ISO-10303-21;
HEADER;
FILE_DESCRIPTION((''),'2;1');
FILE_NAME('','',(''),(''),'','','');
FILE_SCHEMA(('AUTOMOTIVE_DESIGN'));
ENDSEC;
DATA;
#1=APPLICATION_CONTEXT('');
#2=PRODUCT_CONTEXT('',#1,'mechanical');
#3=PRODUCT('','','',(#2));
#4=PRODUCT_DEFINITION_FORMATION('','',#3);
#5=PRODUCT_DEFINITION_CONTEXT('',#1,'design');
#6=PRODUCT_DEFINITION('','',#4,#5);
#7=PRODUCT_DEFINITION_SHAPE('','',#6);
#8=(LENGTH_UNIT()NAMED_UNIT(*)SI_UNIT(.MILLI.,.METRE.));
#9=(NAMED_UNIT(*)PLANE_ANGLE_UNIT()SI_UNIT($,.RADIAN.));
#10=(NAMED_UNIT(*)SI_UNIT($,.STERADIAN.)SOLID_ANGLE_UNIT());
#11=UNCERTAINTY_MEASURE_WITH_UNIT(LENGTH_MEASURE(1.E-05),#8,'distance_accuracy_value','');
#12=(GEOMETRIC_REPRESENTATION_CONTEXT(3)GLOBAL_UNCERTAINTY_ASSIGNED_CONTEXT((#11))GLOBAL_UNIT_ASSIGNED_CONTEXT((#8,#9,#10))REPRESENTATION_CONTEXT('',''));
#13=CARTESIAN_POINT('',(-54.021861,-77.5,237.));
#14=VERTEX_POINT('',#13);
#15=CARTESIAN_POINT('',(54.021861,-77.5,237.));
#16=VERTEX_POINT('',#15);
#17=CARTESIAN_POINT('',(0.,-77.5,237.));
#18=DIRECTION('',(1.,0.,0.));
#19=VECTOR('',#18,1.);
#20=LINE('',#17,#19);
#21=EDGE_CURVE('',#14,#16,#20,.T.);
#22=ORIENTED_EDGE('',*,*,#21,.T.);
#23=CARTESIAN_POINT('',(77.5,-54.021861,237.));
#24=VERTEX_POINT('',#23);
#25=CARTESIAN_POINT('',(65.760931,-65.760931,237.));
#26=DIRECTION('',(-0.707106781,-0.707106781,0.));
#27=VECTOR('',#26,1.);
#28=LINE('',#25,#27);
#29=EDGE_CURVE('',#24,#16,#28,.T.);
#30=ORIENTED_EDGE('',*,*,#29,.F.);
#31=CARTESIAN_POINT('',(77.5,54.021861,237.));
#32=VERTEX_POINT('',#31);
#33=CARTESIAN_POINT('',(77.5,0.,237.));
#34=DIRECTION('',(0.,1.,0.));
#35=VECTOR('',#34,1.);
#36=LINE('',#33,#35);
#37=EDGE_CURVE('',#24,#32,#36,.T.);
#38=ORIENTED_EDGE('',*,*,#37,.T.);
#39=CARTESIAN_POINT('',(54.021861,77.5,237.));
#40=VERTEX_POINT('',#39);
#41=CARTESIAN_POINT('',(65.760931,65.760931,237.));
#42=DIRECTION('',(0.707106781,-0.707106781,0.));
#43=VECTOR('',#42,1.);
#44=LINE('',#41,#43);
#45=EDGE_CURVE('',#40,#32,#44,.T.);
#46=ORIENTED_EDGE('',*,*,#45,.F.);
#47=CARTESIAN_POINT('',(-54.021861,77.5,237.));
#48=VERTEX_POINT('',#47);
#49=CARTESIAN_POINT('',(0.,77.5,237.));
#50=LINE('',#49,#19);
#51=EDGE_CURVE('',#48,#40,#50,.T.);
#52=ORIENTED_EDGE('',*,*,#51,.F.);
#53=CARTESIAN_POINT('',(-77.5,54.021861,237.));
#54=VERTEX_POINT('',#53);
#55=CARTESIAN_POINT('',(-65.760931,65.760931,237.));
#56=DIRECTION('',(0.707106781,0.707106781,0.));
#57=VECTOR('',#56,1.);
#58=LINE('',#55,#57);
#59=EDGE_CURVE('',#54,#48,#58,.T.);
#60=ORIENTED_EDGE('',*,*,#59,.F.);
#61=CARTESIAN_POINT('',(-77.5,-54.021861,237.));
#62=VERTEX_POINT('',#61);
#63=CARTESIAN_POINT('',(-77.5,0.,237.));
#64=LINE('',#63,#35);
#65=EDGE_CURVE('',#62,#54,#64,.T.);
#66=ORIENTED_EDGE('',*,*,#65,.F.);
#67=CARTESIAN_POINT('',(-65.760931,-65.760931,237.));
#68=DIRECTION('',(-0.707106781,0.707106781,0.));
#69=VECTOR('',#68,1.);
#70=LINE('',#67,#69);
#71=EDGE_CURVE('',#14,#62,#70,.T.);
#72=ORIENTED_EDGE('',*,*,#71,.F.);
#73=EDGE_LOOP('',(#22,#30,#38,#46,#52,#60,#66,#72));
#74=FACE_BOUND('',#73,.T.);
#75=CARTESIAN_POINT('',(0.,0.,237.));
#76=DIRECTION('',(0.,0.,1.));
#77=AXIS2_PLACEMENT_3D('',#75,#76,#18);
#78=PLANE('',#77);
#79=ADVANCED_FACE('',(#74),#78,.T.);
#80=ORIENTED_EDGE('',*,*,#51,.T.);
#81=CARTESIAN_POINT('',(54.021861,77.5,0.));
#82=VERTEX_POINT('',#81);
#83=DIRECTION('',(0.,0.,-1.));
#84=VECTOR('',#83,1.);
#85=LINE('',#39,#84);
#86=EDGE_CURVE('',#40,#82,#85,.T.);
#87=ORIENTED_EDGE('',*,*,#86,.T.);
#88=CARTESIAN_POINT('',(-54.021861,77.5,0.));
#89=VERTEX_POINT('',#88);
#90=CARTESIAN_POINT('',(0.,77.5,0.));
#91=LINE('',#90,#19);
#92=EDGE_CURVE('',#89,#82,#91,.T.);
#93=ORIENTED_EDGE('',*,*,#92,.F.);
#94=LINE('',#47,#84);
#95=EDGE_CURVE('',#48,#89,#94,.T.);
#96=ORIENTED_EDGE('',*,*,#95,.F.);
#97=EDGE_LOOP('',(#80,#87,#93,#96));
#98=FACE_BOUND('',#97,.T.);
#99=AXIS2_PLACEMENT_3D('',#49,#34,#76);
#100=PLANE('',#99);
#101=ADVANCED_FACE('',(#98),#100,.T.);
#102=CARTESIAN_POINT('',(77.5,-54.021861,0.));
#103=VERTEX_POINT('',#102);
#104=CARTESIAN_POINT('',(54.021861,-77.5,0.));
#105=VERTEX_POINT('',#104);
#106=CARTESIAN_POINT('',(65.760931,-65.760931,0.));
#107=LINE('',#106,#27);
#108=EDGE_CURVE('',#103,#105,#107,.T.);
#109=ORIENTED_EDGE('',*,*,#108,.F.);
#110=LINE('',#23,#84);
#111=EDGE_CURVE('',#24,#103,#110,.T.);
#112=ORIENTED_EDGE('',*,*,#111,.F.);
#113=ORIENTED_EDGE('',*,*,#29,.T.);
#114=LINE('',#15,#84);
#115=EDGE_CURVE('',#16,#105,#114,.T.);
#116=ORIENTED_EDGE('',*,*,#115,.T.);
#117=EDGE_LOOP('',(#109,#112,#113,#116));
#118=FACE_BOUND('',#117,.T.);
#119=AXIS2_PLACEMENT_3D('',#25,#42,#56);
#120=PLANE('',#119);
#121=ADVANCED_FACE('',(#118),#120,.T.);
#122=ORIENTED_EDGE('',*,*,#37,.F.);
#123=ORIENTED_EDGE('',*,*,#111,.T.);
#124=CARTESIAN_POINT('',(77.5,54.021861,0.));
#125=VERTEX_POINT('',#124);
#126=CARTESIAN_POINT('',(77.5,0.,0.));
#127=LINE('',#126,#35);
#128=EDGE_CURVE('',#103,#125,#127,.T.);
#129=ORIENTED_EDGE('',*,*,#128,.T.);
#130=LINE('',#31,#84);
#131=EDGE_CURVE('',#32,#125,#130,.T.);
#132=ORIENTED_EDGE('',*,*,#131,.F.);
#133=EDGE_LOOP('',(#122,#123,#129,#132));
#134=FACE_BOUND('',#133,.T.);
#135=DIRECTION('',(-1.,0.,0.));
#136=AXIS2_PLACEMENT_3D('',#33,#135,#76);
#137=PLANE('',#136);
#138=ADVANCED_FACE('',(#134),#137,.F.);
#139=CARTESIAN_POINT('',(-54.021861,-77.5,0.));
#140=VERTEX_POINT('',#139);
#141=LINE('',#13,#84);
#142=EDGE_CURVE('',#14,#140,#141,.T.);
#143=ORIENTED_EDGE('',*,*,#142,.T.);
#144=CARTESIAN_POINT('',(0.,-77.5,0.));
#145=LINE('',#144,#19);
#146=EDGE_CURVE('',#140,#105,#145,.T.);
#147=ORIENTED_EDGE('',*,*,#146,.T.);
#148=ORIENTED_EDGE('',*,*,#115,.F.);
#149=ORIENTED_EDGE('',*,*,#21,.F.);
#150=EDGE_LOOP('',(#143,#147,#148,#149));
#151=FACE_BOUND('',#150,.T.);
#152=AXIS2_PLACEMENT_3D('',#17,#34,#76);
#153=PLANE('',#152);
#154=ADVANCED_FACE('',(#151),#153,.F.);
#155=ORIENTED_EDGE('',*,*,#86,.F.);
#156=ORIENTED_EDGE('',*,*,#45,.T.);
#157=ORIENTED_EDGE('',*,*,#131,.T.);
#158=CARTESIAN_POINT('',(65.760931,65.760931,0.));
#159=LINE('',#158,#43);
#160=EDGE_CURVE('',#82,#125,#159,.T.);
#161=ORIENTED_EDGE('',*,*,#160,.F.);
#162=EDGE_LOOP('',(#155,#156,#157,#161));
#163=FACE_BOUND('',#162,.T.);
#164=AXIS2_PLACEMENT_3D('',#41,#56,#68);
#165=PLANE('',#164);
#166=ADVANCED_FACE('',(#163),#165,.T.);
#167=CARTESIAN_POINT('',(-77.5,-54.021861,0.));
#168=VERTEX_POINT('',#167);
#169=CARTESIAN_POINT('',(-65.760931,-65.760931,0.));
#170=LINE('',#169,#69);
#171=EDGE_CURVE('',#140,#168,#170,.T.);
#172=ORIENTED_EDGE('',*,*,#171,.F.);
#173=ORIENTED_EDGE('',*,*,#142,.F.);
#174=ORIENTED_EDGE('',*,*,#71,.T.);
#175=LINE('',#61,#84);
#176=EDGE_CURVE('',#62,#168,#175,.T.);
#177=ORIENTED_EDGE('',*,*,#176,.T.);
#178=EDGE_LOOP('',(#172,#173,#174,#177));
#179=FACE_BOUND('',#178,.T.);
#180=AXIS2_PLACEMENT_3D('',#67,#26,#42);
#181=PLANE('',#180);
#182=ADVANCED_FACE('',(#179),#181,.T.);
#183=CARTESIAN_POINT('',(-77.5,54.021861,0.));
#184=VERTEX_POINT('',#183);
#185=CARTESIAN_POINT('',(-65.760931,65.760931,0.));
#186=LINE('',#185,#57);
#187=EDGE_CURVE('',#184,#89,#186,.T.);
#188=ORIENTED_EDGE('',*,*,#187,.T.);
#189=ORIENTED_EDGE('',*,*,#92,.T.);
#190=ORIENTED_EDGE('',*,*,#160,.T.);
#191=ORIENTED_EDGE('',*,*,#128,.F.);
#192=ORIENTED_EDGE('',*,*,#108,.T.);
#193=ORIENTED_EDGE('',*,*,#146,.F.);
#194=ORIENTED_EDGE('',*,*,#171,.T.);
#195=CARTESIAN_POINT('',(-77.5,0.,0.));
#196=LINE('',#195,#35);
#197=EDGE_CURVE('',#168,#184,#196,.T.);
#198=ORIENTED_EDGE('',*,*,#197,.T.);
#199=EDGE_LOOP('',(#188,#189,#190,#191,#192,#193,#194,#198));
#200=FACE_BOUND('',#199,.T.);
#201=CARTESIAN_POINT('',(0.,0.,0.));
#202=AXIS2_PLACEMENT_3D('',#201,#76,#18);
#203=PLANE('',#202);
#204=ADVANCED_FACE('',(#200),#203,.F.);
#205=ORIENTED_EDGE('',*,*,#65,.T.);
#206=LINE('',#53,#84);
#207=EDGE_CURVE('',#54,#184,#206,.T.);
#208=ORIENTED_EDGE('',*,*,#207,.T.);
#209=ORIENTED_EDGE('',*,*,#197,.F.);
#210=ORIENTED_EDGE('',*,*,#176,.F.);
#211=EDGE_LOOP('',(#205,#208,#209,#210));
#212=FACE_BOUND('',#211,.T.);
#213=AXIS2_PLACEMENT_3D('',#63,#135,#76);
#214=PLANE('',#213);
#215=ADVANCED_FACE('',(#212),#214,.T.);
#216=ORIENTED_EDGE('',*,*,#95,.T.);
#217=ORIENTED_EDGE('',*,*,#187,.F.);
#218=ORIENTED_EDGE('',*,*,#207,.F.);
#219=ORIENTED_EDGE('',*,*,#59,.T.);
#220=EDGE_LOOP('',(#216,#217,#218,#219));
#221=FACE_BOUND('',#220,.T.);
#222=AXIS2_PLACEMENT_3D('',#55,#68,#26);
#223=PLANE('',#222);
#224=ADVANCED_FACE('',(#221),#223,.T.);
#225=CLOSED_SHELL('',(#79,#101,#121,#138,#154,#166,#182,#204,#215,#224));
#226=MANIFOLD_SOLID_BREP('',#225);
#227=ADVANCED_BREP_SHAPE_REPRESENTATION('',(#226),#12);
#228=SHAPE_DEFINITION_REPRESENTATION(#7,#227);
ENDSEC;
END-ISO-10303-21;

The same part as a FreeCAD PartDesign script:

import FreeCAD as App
import Part
import Sketcher

V = App.Vector


def add_polygon(sketch, points):
    """Adds a closed chain of lines whose ends are joined by coincident constraints."""
    first, n = sketch.GeometryCount, len(points)
    for a, b in zip(points, points[1:] + points[:1]):
        sketch.addGeometry(Part.LineSegment(App.Vector(*a, 0), App.Vector(*b, 0)), False)
    for i in range(n):
        sketch.addConstraint(Sketcher.Constraint("Coincident", first + i, 2, first + (i + 1) % n, 1))

doc = App.newDocument("Part")
body = doc.addObject("PartDesign::Body", "Body")

# Sketch on XY plane
sketch1 = doc.addObject("Sketcher::SketchObject", "Sketch")
body.addObject(sketch1)
sketch1.AttachmentSupport = (doc.XY_Plane, [""])
sketch1.MapMode = "FlatFace"
add_polygon(sketch1, [(-78, -54), (-54, -78), (54, -78), (78, -54), (78, 54), (54, 78), (-54, 78), (-78, 54)])  # lines 0-7
sketch1.addConstraint([
    Sketcher.Constraint("Horizontal", 1),
    Sketcher.Constraint("Vertical", 3),
    Sketcher.Constraint("Horizontal", 5),
    Sketcher.Constraint("Vertical", 7),
    Sketcher.Constraint("Symmetric", 0, 2, 4, 2, -1, 1),
    Sketcher.Constraint("Symmetric", 2, 2, 6, 2, -1, 1),
    Sketcher.Constraint("Perpendicular", 0, 2),
    Sketcher.Constraint("Perpendicular", 2, 4),
    Sketcher.Constraint("Perpendicular", 4, 6),
    Sketcher.Constraint("Horizontal", 3, 2, 6, 2),
    Sketcher.Constraint("Vertical", 1, 2, 4, 2),
    Sketcher.Constraint("Equal", 5, 3),
    Sketcher.Constraint("DistanceY", 1, 2, 4, 2, 155.0),
    Sketcher.Constraint("DistanceX", 1, 1, 1, 2, 108.043723),
])
pad1 = doc.addObject("PartDesign::Pad", "Pad")
body.addObject(pad1)
pad1.Profile = sketch1
pad1.Length = 237

doc.recompute()
